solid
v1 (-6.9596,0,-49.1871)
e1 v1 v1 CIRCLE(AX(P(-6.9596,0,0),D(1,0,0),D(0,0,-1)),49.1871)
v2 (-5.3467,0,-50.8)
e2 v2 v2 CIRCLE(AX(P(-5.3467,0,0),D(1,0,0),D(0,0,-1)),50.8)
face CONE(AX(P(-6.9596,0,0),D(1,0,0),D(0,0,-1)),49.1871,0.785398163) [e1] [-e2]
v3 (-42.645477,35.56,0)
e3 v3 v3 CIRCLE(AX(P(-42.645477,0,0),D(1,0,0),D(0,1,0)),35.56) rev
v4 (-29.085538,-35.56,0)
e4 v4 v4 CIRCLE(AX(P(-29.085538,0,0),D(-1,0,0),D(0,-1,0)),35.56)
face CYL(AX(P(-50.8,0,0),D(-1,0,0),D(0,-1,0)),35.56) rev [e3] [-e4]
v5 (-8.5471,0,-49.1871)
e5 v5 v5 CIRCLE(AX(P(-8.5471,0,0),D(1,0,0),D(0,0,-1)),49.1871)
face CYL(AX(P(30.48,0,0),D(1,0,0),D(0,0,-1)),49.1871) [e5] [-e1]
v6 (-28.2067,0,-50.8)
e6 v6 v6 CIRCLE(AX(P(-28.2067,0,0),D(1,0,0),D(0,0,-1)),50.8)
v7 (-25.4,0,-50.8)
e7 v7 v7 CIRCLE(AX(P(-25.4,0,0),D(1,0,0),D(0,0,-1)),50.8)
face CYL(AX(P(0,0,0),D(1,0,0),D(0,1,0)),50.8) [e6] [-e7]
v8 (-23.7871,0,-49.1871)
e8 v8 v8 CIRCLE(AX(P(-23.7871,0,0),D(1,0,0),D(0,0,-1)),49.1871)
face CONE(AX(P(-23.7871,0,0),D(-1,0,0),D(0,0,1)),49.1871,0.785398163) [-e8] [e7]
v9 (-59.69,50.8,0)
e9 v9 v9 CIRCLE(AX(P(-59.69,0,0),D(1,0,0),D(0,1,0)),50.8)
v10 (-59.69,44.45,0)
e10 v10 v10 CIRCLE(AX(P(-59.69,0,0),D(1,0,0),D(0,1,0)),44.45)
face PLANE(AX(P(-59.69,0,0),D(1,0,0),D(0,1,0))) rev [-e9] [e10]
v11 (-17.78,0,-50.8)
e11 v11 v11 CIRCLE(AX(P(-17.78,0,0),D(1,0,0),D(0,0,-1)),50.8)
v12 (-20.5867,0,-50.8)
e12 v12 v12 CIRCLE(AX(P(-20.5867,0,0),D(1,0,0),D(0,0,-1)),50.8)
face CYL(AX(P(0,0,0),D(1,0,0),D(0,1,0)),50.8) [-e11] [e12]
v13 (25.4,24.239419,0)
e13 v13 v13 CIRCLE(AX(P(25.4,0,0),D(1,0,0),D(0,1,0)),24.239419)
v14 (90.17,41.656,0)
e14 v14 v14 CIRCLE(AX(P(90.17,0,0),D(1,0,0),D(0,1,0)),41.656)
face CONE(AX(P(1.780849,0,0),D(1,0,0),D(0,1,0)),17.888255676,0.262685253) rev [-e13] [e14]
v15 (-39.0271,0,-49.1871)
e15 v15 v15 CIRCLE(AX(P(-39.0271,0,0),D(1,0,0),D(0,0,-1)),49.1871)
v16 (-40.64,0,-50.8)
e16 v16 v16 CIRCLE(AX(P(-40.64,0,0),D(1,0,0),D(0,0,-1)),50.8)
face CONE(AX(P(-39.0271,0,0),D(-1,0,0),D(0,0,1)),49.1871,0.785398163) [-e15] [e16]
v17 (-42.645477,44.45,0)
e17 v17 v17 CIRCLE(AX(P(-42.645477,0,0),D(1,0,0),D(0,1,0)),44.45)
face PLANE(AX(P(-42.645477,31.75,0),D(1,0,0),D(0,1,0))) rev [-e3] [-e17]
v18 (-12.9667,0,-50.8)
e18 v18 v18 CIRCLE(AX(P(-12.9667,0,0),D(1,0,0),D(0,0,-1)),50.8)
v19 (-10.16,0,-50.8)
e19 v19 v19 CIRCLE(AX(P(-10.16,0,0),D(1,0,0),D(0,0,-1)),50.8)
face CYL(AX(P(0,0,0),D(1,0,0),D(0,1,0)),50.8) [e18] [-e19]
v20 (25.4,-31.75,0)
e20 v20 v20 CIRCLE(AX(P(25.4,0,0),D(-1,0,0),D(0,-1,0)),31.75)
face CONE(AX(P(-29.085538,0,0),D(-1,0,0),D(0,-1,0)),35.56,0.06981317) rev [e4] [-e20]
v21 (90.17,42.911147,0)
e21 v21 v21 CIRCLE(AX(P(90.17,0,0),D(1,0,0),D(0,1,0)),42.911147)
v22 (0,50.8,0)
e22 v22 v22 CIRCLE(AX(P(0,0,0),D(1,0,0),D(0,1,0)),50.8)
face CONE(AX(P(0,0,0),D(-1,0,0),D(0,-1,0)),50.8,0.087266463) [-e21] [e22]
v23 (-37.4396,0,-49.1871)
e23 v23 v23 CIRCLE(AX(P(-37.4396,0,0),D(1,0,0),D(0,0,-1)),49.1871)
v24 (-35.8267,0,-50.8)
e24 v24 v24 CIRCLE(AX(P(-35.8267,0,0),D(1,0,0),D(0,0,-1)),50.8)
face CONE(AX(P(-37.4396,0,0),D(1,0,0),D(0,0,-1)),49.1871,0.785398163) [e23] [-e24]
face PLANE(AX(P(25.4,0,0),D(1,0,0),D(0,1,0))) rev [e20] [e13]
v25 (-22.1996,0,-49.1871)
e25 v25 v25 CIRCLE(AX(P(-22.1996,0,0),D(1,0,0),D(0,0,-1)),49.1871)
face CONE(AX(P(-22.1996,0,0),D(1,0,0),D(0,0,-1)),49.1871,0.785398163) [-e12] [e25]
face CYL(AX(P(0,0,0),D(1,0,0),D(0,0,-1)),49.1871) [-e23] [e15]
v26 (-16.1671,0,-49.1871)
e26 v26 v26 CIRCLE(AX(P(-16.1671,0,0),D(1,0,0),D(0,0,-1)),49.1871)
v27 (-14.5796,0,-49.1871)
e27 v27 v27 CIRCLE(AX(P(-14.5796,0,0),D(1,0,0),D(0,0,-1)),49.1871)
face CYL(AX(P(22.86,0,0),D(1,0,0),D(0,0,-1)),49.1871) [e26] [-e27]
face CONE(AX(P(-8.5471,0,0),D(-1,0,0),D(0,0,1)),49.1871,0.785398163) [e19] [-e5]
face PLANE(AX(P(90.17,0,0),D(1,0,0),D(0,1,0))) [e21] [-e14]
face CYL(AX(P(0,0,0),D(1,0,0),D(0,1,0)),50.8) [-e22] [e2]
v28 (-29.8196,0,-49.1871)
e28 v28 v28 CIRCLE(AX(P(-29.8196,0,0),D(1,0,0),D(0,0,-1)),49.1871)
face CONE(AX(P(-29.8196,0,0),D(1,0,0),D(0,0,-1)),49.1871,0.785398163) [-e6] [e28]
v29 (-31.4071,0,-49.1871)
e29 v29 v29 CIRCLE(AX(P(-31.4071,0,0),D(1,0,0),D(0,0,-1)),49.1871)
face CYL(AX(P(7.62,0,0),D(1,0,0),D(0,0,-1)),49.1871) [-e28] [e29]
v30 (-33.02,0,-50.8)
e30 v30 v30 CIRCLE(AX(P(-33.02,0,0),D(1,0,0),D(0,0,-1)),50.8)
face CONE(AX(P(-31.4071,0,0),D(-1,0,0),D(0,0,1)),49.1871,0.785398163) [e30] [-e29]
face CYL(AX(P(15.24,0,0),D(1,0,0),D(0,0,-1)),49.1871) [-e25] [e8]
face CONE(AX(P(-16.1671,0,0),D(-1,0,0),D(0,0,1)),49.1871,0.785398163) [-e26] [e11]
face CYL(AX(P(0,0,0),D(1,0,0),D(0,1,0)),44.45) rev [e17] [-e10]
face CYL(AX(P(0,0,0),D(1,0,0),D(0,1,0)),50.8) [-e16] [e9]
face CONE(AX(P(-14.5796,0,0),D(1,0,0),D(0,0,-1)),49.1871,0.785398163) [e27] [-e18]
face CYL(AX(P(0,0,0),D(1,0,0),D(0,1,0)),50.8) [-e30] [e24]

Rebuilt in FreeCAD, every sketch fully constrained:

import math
import FreeCAD as App
import Part
import Sketcher
Q = App.Units.Quantity


def add_polygon(sketch, points):
    """Adds a closed chain of lines whose ends are joined by coincident constraints."""
    first, n = sketch.GeometryCount, len(points)
    for a, b in zip(points, points[1:] + points[:1]):
        sketch.addGeometry(Part.LineSegment(App.Vector(*a, 0), App.Vector(*b, 0)), False)
    for i in range(n):
        sketch.addConstraint(Sketcher.Constraint("Coincident", first + i, 2, first + (i + 1) % n, 1))

doc = App.newDocument("Part")
body = doc.addObject("PartDesign::Body", "Body")

sketch1 = body.newObject("Sketcher::SketchObject", "Sketch")
sketch1.AttachmentSupport = (doc.getObject("XY_Plane"), [""])
sketch1.MapMode = "FlatFace"
sketch1.addGeometry([
    Part.ArcOfCircle(Part.Circle(App.Vector(0, 24.5, 0), App.Vector(0, 0, 1), 6.9), math.radians(-90), math.radians(-74.95)),
    Part.LineSegment(App.Vector(1.8, 17.9, 0), App.Vector(90.2, 41.7, 0)),
    Part.LineSegment(App.Vector(90.2, 41.7, 0), App.Vector(90.2, 42.9, 0)),
    Part.LineSegment(App.Vector(90.2, 42.9, 0), App.Vector(0, 50.8, 0)),
    Part.LineSegment(App.Vector(0, 50.8, 0), App.Vector(-59.7, 50.8, 0)),
    Part.LineSegment(App.Vector(-59.7, 50.8, 0), App.Vector(-59.7, 44.5, 0)),
    Part.LineSegment(App.Vector(-59.7, 44.5, 0), App.Vector(-72.4, 44.5, 0)),
    Part.LineSegment(App.Vector(-72.4, 44.5, 0), App.Vector(-72.4, 38.1, 0)),
    Part.LineSegment(App.Vector(-72.4, 38.1, 0), App.Vector(-59.7, 38.1, 0)),
    Part.LineSegment(App.Vector(-59.7, 38.1, 0), App.Vector(-9.3, 19.3, 0)),
    Part.ArcOfCircle(Part.Circle(App.Vector(0, 44.3, 0), App.Vector(0, 0, 1), 26.7), math.radians(-110), math.radians(-90)),
], False)
sketch1.addConstraint([
    Sketcher.Constraint("Tangent", 0, 2, 1, 1),
    Sketcher.Constraint("Coincident", 1, 2, 2, 1),
    Sketcher.Constraint("Coincident", 2, 2, 3, 1),
    Sketcher.Constraint("Coincident", 3, 2, 4, 1),
    Sketcher.Constraint("Coincident", 4, 2, 5, 1),
    Sketcher.Constraint("Coincident", 5, 2, 6, 1),
    Sketcher.Constraint("Coincident", 6, 2, 7, 1),
    Sketcher.Constraint("Coincident", 7, 2, 8, 1),
    Sketcher.Constraint("Coincident", 8, 2, 9, 1),
    Sketcher.Constraint("Tangent", 9, 2, 10, 1),
    Sketcher.Constraint("Tangent", 10, 2, 0, 1),
    Sketcher.Constraint("Vertical", 2),
    Sketcher.Constraint("Horizontal", 4),
    Sketcher.Constraint("Vertical", 5),
    Sketcher.Constraint("Horizontal", 6),
    Sketcher.Constraint("Vertical", 7),
    Sketcher.Constraint("Horizontal", 8),
    Sketcher.Constraint("PointOnObject", 0, 3, -2),
    Sketcher.Constraint("PointOnObject", 10, 3, -2),
    Sketcher.Constraint("PointOnObject", 3, 2, -2),
    Sketcher.Constraint("Vertical", 5, 2, 8, 2),
    Sketcher.Constraint("Equal", 5, 7),
    Sketcher.Constraint("Radius", 0, Q("0.27 in")),
    Sketcher.Constraint("Radius", 10, Q("1.05 in")),
    Sketcher.Constraint("DistanceX", 6, 2, 6, 1, Q("0.5 in")),
    Sketcher.Constraint("DistanceY", -1, 1, 3, 2, Q("2 in")),
    Sketcher.Constraint("Angle", 3, Q("175 deg")),
    Sketcher.Constraint("DistanceX", 4, 2, 4, 1, Q("2.35 in")),
    Sketcher.Constraint("DistanceY", 5, 2, 5, 1, Q("0.25 in")),
    Sketcher.Constraint("DistanceX", 4, 2, 2, 2, Q("5.9 in")),
    Sketcher.Constraint("DistanceY", -1, 1, 1, 2, Q("1.64 in")),
    Sketcher.Constraint("DistanceY", -1, 1, 0, 3, Q("0.965 in")),
])
revolution = body.newObject("PartDesign::Revolution", "Revolution")
revolution.Profile = sketch1
revolution.ReferenceAxis = (sketch1, ["H_Axis"])
revolution.Angle = 360

sketch2 = body.newObject("Sketcher::SketchObject", "Sketch001")
sketch2.AttachmentSupport = (doc.getObject("XY_Plane"), [""])
sketch2.MapMode = "FlatFace"
add_polygon(sketch2, [(-42.6, 31.8), (-50.8, 31.8), (-50.8, 0), (25.4, 0), (25.4, 31.8), (-29.1, 35.6), (-42.6, 35.6)])
sketch2.addConstraint([
    Sketcher.Constraint("Horizontal", 0),
    Sketcher.Constraint("Vertical", 1),
    Sketcher.Constraint("Horizontal", 2),
    Sketcher.Constraint("Vertical", 3),
    Sketcher.Constraint("Horizontal", 5),
    Sketcher.Constraint("Vertical", 6),
    Sketcher.Constraint("PointOnObject", 1, 2, -1),
    Sketcher.Constraint("Horizontal", 0, 2, 3, 2),
    Sketcher.Constraint("DistanceX", 2, 1, 2, 2, Q("3 in")),
    Sketcher.Constraint("DistanceX", 0, 2, -1, 1, Q("2 in")),
    Sketcher.Constraint("Angle", 4, Q("176 deg")),
    Sketcher.Constraint("DistanceY", 1, 2, 1, 1, Q("1.25 in")),
    Sketcher.Constraint("DistanceY", 6, 2, 6, 1, Q("0.15 in")),
    Sketcher.Constraint("DistanceX", 5, 2, 5, 1, 13.559938),
])
groove = body.newObject("PartDesign::Groove", "Groove")
groove.Profile = sketch2
groove.ReferenceAxis = (sketch2, ["H_Axis"])
groove.Angle = 360

sketch3 = body.newObject("Sketcher::SketchObject", "Sketch002")
sketch3.AttachmentSupport = (doc.getObject("XY_Plane"), [""])
sketch3.MapMode = "FlatFace"
add_polygon(sketch3, [(-72, 44), (-72, 32), (-43, 32), (-43, 44)])
sketch3.addConstraint([
    Sketcher.Constraint("Vertical", 0),
    Sketcher.Constraint("Horizontal", 1),
    Sketcher.Constraint("Vertical", 2),
    Sketcher.Constraint("Horizontal", 3),
    Sketcher.Constraint("DistanceY", 0, 2, 0, 1, Q("0.5 in")),
    Sketcher.Constraint("DistanceX", 0, 2, -1, 1, Q("2.85 in")),
    Sketcher.Constraint("DistanceY", -1, 1, 0, 2, Q("1.25 in")),
    Sketcher.Constraint("DistanceX", 1, 1, 1, 2, 29.744523),
])
groove2 = body.newObject("PartDesign::Groove", "Groove001")
groove2.Profile = sketch3
groove2.ReferenceAxis = (sketch3, ["H_Axis"])
groove2.Angle = 360

sketch4 = body.newObject("Sketcher::SketchObject", "Sketch003")
sketch4.AttachmentSupport = (doc.getObject("XY_Plane"), [""])
sketch4.MapMode = "FlatFace"
add_polygon(sketch4, [(-37.4, 49.2), (-35.8, 50.8), (-40.6, 50.8), (-39, 49.2)])
sketch4.addConstraint([
    Sketcher.Constraint("Horizontal", 1),
    Sketcher.Constraint("Horizontal", 3),
    Sketcher.Constraint("Perpendicular", 0, 2),
    Sketcher.Constraint("Equal", 0, 2),
    Sketcher.Constraint("DistanceY", -1, 1, 0, 2, Q("2 in")),
    Sketcher.Constraint("DistanceX", 1, 2, -1, 1, Q("1.6 in")),
    Sketcher.Constraint("DistanceX", 3, 1, 3, 2, Q("0.0625 in")),
    Sketcher.Constraint("DistanceX", 1, 2, 1, 1, Q("0.1895 in")),
])
groove3 = body.newObject("PartDesign::Groove", "Groove002")
groove3.Profile = sketch4
groove3.ReferenceAxis = (sketch4, ["H_Axis"])
groove3.Angle = 360
doc.recompute()

linearpattern = body.newObject("PartDesign::LinearPattern", "LinearPattern")
linearpattern.Originals = [groove3]
linearpattern.Direction = (doc.getObject("X_Axis"), [""])
linearpattern.Mode = "offset"
linearpattern.Offset = Q("0.3 in")
linearpattern.Occurrences = 5
body.Tip = linearpattern

doc.recompute()
